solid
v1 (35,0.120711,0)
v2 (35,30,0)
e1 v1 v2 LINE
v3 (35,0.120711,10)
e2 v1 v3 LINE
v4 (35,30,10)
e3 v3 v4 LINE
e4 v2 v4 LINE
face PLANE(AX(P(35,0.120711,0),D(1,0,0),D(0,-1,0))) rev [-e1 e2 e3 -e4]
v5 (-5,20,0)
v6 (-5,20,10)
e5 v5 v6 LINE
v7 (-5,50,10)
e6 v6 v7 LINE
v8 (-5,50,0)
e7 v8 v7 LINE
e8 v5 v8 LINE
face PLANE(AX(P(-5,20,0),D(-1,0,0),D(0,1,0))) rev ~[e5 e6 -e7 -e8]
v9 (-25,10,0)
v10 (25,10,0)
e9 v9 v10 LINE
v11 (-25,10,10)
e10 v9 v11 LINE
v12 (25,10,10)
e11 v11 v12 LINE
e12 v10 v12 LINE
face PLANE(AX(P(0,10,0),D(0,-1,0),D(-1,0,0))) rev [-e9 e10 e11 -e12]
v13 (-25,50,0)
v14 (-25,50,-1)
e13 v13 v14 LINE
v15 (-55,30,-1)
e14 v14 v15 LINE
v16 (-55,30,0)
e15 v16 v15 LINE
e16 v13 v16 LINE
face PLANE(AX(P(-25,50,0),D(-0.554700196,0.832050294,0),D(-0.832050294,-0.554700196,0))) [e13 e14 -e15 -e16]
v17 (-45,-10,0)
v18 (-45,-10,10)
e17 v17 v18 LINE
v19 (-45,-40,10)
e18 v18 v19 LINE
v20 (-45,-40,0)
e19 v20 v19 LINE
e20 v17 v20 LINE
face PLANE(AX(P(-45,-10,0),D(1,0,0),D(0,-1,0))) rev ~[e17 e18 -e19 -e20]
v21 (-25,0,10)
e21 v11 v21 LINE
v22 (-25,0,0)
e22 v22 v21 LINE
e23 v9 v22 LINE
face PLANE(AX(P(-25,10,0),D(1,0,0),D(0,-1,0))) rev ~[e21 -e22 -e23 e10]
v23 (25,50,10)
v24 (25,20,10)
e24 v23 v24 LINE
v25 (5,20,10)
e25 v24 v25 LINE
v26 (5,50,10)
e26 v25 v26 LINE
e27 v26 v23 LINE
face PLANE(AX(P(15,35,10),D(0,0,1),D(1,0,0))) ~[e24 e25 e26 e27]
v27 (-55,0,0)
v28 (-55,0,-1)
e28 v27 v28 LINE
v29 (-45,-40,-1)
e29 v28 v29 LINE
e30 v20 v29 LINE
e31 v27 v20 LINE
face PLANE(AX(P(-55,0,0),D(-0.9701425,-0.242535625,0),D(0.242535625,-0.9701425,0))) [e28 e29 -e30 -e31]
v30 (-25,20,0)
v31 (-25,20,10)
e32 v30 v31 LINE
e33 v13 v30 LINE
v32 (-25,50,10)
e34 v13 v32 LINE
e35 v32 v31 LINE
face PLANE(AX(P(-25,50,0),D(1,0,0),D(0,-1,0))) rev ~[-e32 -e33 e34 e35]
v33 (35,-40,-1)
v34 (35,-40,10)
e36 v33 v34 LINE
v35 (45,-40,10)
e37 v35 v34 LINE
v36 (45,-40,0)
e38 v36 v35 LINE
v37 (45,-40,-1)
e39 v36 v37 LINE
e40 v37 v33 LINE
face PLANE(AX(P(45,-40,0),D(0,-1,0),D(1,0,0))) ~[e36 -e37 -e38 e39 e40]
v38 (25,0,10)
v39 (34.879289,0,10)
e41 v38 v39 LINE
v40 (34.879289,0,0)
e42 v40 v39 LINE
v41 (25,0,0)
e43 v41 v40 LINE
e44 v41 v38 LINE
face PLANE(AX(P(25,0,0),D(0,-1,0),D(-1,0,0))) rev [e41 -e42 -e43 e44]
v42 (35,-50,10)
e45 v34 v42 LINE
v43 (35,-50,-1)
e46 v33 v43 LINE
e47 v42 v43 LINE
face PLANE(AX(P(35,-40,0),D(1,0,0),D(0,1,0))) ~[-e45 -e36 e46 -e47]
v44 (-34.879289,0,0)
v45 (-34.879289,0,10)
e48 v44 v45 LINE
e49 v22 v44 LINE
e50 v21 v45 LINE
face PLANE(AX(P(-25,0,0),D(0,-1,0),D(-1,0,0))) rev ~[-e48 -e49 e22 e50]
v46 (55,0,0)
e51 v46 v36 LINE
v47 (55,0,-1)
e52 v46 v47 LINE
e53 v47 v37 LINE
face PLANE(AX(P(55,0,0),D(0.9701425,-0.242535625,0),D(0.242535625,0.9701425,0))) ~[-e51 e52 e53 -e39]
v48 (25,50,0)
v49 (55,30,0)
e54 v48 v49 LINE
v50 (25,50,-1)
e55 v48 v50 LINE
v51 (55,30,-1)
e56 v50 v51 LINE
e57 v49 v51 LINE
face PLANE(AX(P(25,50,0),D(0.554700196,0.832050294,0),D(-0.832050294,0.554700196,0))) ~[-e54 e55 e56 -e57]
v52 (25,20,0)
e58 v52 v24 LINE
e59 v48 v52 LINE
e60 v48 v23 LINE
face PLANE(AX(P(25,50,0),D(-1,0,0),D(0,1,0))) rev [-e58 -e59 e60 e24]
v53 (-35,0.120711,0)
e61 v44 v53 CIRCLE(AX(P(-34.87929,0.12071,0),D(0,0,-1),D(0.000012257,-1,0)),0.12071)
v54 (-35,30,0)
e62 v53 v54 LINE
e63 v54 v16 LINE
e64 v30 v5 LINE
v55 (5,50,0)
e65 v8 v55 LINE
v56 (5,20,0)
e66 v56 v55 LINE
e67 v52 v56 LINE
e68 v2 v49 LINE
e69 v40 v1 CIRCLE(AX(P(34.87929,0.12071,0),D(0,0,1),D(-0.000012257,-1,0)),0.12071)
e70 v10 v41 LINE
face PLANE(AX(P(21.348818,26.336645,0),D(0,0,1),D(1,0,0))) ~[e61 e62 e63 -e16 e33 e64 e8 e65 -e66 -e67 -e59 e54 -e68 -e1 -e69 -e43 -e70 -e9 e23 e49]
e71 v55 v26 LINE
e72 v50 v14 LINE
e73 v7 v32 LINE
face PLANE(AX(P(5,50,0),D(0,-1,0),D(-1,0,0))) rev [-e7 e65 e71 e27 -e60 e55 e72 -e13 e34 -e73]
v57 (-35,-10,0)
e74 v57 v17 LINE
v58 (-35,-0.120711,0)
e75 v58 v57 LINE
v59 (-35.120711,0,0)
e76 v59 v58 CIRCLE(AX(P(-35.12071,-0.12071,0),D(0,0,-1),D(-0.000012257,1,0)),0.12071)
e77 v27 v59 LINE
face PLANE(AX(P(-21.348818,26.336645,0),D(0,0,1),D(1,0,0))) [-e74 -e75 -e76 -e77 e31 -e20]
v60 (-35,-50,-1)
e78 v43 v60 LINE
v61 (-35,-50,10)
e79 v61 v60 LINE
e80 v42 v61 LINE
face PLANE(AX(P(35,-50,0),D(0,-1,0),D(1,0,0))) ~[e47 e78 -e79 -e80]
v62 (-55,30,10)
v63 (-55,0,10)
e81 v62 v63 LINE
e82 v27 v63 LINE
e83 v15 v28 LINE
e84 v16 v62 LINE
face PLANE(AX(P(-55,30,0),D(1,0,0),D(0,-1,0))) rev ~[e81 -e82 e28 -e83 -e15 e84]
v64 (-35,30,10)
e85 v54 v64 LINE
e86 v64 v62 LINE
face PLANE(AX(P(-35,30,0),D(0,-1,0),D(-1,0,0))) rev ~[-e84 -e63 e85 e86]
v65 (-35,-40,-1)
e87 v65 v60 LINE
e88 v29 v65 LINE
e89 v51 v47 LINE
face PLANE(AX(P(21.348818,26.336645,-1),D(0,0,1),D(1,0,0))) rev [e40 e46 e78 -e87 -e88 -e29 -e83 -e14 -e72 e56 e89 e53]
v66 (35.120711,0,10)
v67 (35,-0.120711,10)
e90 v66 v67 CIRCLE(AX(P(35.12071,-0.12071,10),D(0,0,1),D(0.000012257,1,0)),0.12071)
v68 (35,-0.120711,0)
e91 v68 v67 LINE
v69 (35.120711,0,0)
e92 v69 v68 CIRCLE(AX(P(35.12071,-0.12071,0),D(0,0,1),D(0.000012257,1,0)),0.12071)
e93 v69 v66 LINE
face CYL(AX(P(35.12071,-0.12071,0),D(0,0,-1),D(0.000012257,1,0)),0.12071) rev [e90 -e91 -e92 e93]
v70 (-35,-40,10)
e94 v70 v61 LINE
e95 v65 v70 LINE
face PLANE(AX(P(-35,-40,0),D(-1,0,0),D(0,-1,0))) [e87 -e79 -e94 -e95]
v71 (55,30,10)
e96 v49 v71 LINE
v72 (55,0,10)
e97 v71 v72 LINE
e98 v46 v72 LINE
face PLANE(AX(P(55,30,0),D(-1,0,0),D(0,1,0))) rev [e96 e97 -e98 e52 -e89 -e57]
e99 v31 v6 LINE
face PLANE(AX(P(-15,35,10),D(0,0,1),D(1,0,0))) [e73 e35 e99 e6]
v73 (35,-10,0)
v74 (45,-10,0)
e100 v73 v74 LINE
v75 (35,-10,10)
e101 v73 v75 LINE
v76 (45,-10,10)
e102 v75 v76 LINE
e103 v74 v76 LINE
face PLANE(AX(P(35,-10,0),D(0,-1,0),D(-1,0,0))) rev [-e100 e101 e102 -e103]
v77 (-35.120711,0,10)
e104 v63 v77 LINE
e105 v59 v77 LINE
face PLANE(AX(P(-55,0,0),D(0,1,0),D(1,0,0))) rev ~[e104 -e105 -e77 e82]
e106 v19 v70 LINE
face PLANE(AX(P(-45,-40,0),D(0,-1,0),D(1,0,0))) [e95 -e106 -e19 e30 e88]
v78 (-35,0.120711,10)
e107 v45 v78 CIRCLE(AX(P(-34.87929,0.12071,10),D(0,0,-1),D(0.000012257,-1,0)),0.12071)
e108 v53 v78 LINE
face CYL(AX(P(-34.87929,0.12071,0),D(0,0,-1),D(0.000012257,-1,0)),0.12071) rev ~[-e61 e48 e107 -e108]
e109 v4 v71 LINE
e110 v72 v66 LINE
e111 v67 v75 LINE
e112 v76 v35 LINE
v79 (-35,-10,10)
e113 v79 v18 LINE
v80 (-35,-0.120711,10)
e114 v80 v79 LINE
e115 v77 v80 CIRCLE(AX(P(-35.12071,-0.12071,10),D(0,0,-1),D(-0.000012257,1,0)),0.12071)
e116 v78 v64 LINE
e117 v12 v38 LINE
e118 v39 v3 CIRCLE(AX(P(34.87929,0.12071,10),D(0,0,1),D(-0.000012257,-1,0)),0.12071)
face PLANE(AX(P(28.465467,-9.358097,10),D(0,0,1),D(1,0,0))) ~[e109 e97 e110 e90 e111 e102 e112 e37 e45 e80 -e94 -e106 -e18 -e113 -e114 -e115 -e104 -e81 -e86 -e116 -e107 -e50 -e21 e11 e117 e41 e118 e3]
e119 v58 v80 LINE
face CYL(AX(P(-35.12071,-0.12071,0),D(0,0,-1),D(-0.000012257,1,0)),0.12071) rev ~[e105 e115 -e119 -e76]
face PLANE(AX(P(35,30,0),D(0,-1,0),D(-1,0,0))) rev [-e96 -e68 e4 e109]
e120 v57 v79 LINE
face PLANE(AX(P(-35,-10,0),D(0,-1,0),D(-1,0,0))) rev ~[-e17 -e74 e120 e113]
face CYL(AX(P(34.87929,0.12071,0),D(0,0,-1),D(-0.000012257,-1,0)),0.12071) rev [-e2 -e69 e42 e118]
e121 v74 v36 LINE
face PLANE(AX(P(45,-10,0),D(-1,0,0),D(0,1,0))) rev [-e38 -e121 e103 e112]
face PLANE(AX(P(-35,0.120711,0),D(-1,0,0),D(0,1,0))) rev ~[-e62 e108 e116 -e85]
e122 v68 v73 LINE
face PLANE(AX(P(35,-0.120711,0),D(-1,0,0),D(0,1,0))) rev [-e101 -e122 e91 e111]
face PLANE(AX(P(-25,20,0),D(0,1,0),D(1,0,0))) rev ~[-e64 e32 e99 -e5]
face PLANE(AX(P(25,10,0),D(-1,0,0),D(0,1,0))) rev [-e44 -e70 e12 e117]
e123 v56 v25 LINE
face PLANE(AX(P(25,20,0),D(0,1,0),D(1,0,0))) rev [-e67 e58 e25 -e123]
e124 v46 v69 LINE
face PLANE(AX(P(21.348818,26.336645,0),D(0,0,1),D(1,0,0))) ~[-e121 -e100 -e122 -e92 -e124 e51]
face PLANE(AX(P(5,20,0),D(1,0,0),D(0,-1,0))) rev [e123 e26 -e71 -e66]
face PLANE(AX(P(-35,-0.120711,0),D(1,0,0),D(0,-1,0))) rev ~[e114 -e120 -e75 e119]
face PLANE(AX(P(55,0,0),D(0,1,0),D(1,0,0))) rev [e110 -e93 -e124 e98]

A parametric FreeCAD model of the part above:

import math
import FreeCAD as App
import Part
import Sketcher

doc = App.newDocument("Part")
body = doc.addObject("PartDesign::Body", "Body")

# Sketch on XY plane
sketch1 = body.newObject("Sketcher::SketchObject", "Sketch")
sketch1.AttachmentSupport = (doc.getObject("XY_Plane"), [""])
sketch1.MapMode = "FlatFace"
sketch1.addGeometry(Part.LineSegment(App.Vector(0, 50, 0), App.Vector(-25, 50, 0)), False)
sketch1.addGeometry(Part.LineSegment(App.Vector(-25, 50, 0), App.Vector(-55, 30, 0)), False)
sketch1.addGeometry(Part.LineSegment(App.Vector(-55, 30, 0), App.Vector(-55, 0, 0)), False)
sketch1.addGeometry(Part.LineSegment(App.Vector(-55, 0, 0), App.Vector(-45, -40, 0)), False)
sketch1.addGeometry(Part.LineSegment(App.Vector(-45, -40, 0), App.Vector(-35, -40, 0)), False)
sketch1.addGeometry(Part.LineSegment(App.Vector(-35, -40, 0), App.Vector(-35, -50, 0)), False)
sketch1.addGeometry(Part.LineSegment(App.Vector(-35, -50, 0), App.Vector(0, -50, 0)), False)
sketch1.addGeometry(Part.LineSegment(App.Vector(0, -50, 0), App.Vector(0, 50, 0)), False)
sketch1.addConstraint(Sketcher.Constraint("Coincident", 0, 2, 1, 1))
sketch1.addConstraint(Sketcher.Constraint("Coincident", 1, 2, 2, 1))
sketch1.addConstraint(Sketcher.Constraint("Coincident", 2, 2, 3, 1))
sketch1.addConstraint(Sketcher.Constraint("Coincident", 3, 2, 4, 1))
sketch1.addConstraint(Sketcher.Constraint("Coincident", 4, 2, 5, 1))
sketch1.addConstraint(Sketcher.Constraint("Coincident", 5, 2, 6, 1))
sketch1.addConstraint(Sketcher.Constraint("Coincident", 6, 2, 7, 1))
sketch1.addConstraint(Sketcher.Constraint("Coincident", 7, 2, 0, 1))
sketch1.addConstraint(Sketcher.Constraint("Horizontal", 0))
sketch1.addConstraint(Sketcher.Constraint("Vertical", 2))
sketch1.addConstraint(Sketcher.Constraint("Horizontal", 4))
sketch1.addConstraint(Sketcher.Constraint("Vertical", 5))
sketch1.addConstraint(Sketcher.Constraint("Horizontal", 6))
sketch1.addConstraint(Sketcher.Constraint("Vertical", 7))
sketch1.addConstraint(Sketcher.Constraint("Symmetric", 6, 2, 7, 2, -1, 1))
sketch1.addConstraint(Sketcher.Constraint("PointOnObject", 2, 2, -1))
sketch1.addConstraint(Sketcher.Constraint("Equal", 4, 5))
sketch1.addConstraint(Sketcher.Constraint("DistanceX", 0, 2, 0, 1, 25.0))
sketch1.addConstraint(Sketcher.Constraint("DistanceX", 4, 1, 4, 2, 10.0))
sketch1.addConstraint(Sketcher.Constraint("DistanceX", 6, 1, 6, 2, 35.0))
sketch1.addConstraint(Sketcher.Constraint("DistanceY", 2, 2, 2, 1, 30.0))
sketch1.addConstraint(Sketcher.Constraint("DistanceY", 7, 1, 7, 2, 100.0))
sketch1.addConstraint(Sketcher.Constraint("DistanceX", 1, 2, -1, 1, 55.0))
pad1 = body.newObject("PartDesign::Pad", "Pad")
pad1.Profile = sketch1
pad1.Length = 1
pad1.Reversed = True

# Sketch on XY plane
sketch2 = body.newObject("Sketcher::SketchObject", "Sketch001")
sketch2.AttachmentSupport = (doc.getObject("XY_Plane"), [""])
sketch2.MapMode = "FlatFace"
sketch2.addGeometry(Part.LineSegment(App.Vector(-5, 20, 0), App.Vector(-5, 50, 0)), False)
sketch2.addGeometry(Part.LineSegment(App.Vector(-5, 50, 0), App.Vector(-25, 50, 0)), False)
sketch2.addGeometry(Part.LineSegment(App.Vector(-25, 50, 0), App.Vector(-25, 20, 0)), False)
sketch2.addGeometry(Part.LineSegment(App.Vector(-25, 20, 0), App.Vector(-5, 20, 0)), False)
sketch2.addGeometry(Part.LineSegment(App.Vector(0, -50, 0), App.Vector(0, 10, 0)), False)
sketch2.addGeometry(Part.LineSegment(App.Vector(0, 10, 0), App.Vector(-25, 10, 0)), False)
sketch2.addGeometry(Part.LineSegment(App.Vector(-25, 10, 0), App.Vector(-25, 0, 0)), False)
sketch2.addGeometry(Part.LineSegment(App.Vector(-25, 0, 0), App.Vector(-34.88, 0, 0)), False)
sketch2.addGeometry(Part.ArcOfCircle(Part.Circle(App.Vector(-34.88, 0.12, 0), App.Vector(0, 0, 1), 0.12), math.radians(180), math.radians(270)), False)
sketch2.addGeometry(Part.LineSegment(App.Vector(-35, 0.12, 0), App.Vector(-35, 30, 0)), False)
sketch2.addGeometry(Part.LineSegment(App.Vector(-35, 30, 0), App.Vector(-55, 30, 0)), False)
sketch2.addGeometry(Part.LineSegment(App.Vector(-55, 30, 0), App.Vector(-55, 0, 0)), False)
sketch2.addGeometry(Part.LineSegment(App.Vector(-55, 0, 0), App.Vector(-35.12, 0, 0)), False)
sketch2.addGeometry(Part.ArcOfCircle(Part.Circle(App.Vector(-35.12, -0.12, 0), App.Vector(0, 0, 1), 0.12), math.radians(0), math.radians(90)), False)
sketch2.addGeometry(Part.LineSegment(App.Vector(-35, -0.12, 0), App.Vector(-35, -10, 0)), False)
sketch2.addGeometry(Part.LineSegment(App.Vector(-35, -10, 0), App.Vector(-45, -10, 0)), False)
sketch2.addGeometry(Part.LineSegment(App.Vector(-45, -10, 0), App.Vector(-45, -40, 0)), False)
sketch2.addGeometry(Part.LineSegment(App.Vector(-45, -40, 0), App.Vector(-35, -40, 0)), False)
sketch2.addGeometry(Part.LineSegment(App.Vector(-35, -40, 0), App.Vector(-35, -50, 0)), False)
sketch2.addGeometry(Part.LineSegment(App.Vector(-35, -50, 0), App.Vector(0, -50, 0)), False)
sketch2.addConstraint(Sketcher.Constraint("Coincident", 0, 2, 1, 1))
sketch2.addConstraint(Sketcher.Constraint("Coincident", 1, 2, 2, 1))
sketch2.addConstraint(Sketcher.Constraint("Coincident", 2, 2, 3, 1))
sketch2.addConstraint(Sketcher.Constraint("Coincident", 3, 2, 0, 1))
sketch2.addConstraint(Sketcher.Constraint("Coincident", 4, 2, 5, 1))
sketch2.addConstraint(Sketcher.Constraint("Coincident", 5, 2, 6, 1))
sketch2.addConstraint(Sketcher.Constraint("Coincident", 6, 2, 7, 1))
sketch2.addConstraint(Sketcher.Constraint("Coincident", 7, 2, 8, 2))
sketch2.addConstraint(Sketcher.Constraint("Coincident", 8, 1, 9, 1))
sketch2.addConstraint(Sketcher.Constraint("Coincident", 9, 2, 10, 1))
sketch2.addConstraint(Sketcher.Constraint("Coincident", 10, 2, 11, 1))
sketch2.addConstraint(Sketcher.Constraint("Coincident", 11, 2, 12, 1))
sketch2.addConstraint(Sketcher.Constraint("Coincident", 12, 2, 13, 2))
sketch2.addConstraint(Sketcher.Constraint("Coincident", 13, 1, 14, 1))
sketch2.addConstraint(Sketcher.Constraint("Coincident", 14, 2, 15, 1))
sketch2.addConstraint(Sketcher.Constraint("Coincident", 15, 2, 16, 1))
sketch2.addConstraint(Sketcher.Constraint("Coincident", 16, 2, 17, 1))
sketch2.addConstraint(Sketcher.Constraint("Coincident", 17, 2, 18, 1))
sketch2.addConstraint(Sketcher.Constraint("Coincident", 18, 2, 19, 1))
sketch2.addConstraint(Sketcher.Constraint("Coincident", 19, 2, 4, 1))
sketch2.addConstraint(Sketcher.Constraint("Vertical", 0))
sketch2.addConstraint(Sketcher.Constraint("Horizontal", 1))
sketch2.addConstraint(Sketcher.Constraint("Vertical", 2))
sketch2.addConstraint(Sketcher.Constraint("Horizontal", 3))
sketch2.addConstraint(Sketcher.Constraint("Vertical", 4))
sketch2.addConstraint(Sketcher.Constraint("Horizontal", 5))
sketch2.addConstraint(Sketcher.Constraint("Vertical", 6))
sketch2.addConstraint(Sketcher.Constraint("Horizontal", 7))
sketch2.addConstraint(Sketcher.Constraint("Vertical", 9))
sketch2.addConstraint(Sketcher.Constraint("Horizontal", 10))
sketch2.addConstraint(Sketcher.Constraint("Vertical", 11))
sketch2.addConstraint(Sketcher.Constraint("Horizontal", 12))
sketch2.addConstraint(Sketcher.Constraint("Vertical", 14))
sketch2.addConstraint(Sketcher.Constraint("Horizontal", 15))
sketch2.addConstraint(Sketcher.Constraint("Vertical", 16))
sketch2.addConstraint(Sketcher.Constraint("Horizontal", 17))
sketch2.addConstraint(Sketcher.Constraint("Vertical", 18))
sketch2.addConstraint(Sketcher.Constraint("Horizontal", 19))
sketch2.addConstraint(Sketcher.Constraint("Equal", 8, 13))
sketch2.addConstraint(Sketcher.Constraint("Symmetric", 8, 1, 13, 1, -1))
sketch2.addConstraint(Sketcher.Constraint("PointOnObject", 4, 2, -2))
sketch2.addConstraint(Sketcher.Constraint("PointOnObject", 6, 2, -1))
sketch2.addConstraint(Sketcher.Constraint("PointOnObject", 11, 2, -1))
sketch2.addConstraint(Sketcher.Constraint("Vertical", 2, 2, 5, 2))
sketch2.addConstraint(Sketcher.Constraint("Vertical", 8, 3, 7, 2))
sketch2.addConstraint(Sketcher.Constraint("Vertical", 13, 3, 12, 2))
sketch2.addConstraint(Sketcher.Constraint("Vertical", 14, 2, 17, 2))
sketch2.addConstraint(Sketcher.Constraint("Equal", 3, 10))
sketch2.addConstraint(Sketcher.Constraint("Equal", 17, 6))
sketch2.addConstraint(Sketcher.Constraint("Equal", 2, 11))
sketch2.addConstraint(Sketcher.Constraint("Equal", 7, 14))
sketch2.addConstraint(Sketcher.Constraint("Equal", 11, 16))
sketch2.addConstraint(Sketcher.Constraint("Equal", 6, 18))
sketch2.addConstraint(Sketcher.Constraint("DistanceX", 1, 2, 1, 1, 20.0))
sketch2.addConstraint(Sketcher.Constraint("DistanceX", 5, 2, 5, 1, 25.0))
sketch2.addConstraint(Sketcher.Constraint("DistanceX", 15, 2, 15, 1, 10.0))
sketch2.addConstraint(Sketcher.Constraint("DistanceX", 19, 1, 19, 2, 35.0))
sketch2.addConstraint(Sketcher.Constraint("DistanceY", 0, 1, 0, 2, 30.0))
sketch2.addConstraint(Sketcher.Constraint("DistanceY", 4, 1, 4, 2, 60.0))
sketch2.addConstraint(Sketcher.Constraint("DistanceY", -1, 1, 0, 2, 50.0))
sketch2.addConstraint(Sketcher.Constraint("Radius", 8, 0.12071))
pad2 = body.newObject("PartDesign::Pad", "Pad001")
pad2.Profile = sketch2
pad2.Length = 10
body2 = doc.addObject("PartDesign::Body", "Body001")
doc.recompute()

body2.BaseFeature = body
doc.recompute()

mirroring = doc.addObject("Part::Mirroring", "Mirroring")
mirroring.Source = body
mirroring.Base = App.Vector(0, 0, 0)
mirroring.Normal = App.Vector(1, 0, 0)
body3 = doc.addObject("PartDesign::Body", "Body002")
body3.BaseFeature = mirroring
boolean = body2.newObject("PartDesign::Boolean", "Boolean")
boolean.Type = "Fuse"
boolean.addObjects([body3])
doc.recompute()
mirroring.Visibility = False

doc.recompute()
